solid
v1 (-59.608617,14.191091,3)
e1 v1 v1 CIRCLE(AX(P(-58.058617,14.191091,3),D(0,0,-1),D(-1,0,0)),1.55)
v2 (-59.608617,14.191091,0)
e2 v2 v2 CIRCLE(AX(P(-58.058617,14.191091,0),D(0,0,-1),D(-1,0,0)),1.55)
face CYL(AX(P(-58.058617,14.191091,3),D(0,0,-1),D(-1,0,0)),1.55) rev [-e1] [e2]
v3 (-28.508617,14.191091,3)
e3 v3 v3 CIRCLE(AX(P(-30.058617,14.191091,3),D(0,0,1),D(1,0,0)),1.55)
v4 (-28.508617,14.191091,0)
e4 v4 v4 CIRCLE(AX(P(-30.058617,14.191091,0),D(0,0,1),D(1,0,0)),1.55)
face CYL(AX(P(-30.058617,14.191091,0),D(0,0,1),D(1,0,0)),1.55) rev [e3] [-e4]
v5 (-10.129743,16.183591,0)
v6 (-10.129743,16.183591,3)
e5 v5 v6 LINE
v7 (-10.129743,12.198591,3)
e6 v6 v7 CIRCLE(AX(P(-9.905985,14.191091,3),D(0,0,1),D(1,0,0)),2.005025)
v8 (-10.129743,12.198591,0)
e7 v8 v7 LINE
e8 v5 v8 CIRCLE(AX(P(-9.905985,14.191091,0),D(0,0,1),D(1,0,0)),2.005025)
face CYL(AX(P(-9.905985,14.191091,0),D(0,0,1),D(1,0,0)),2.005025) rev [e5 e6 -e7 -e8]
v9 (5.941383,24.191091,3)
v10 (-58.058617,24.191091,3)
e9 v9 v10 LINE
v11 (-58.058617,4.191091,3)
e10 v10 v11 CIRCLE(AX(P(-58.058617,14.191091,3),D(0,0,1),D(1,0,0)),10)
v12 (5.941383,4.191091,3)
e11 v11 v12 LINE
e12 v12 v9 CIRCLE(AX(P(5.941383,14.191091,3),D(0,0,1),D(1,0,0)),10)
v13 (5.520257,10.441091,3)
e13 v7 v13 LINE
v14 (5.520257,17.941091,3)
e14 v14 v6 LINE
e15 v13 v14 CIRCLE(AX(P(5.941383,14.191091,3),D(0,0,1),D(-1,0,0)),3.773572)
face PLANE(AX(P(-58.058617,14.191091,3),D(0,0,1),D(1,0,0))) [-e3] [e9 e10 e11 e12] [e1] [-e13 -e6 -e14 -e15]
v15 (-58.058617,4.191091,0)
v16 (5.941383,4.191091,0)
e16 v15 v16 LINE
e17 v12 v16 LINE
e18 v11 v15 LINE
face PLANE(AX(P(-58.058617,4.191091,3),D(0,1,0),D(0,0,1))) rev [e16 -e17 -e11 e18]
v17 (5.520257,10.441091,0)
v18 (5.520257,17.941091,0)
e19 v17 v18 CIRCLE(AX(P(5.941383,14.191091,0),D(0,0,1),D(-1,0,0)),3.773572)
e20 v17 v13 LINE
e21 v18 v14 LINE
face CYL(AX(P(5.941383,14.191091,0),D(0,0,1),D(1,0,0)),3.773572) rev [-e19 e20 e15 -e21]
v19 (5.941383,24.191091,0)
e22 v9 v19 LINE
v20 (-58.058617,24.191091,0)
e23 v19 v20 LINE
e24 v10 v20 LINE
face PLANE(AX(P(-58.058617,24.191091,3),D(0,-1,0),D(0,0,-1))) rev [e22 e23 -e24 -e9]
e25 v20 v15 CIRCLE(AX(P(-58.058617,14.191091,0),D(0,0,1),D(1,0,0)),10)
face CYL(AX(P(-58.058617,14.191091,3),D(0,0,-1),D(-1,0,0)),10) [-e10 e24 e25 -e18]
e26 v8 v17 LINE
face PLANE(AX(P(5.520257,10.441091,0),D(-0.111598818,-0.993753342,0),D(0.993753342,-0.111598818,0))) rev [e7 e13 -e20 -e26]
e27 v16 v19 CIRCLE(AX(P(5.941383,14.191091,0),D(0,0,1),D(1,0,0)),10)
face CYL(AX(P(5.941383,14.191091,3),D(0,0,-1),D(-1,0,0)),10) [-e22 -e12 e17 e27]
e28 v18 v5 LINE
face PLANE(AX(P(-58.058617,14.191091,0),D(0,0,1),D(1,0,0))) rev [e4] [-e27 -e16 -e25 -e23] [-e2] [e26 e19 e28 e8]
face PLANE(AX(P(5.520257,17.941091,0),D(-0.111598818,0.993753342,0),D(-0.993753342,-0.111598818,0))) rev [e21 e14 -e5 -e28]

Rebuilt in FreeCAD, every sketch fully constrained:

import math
import FreeCAD as App
import Part
import Sketcher

V = App.Vector

doc = App.newDocument("Part")
body = doc.addObject("PartDesign::Body", "Body")

# Sketch on XY plane
sketch1 = body.newObject("Sketcher::SketchObject", "Sketch")
sketch1.AttachmentSupport = (doc.getObject("XY_Plane"), [""])
sketch1.MapMode = "FlatFace"
sketch1.addGeometry([
    Part.LineSegment(V(5.941383, 24.191091, 0), V(-58.058617, 24.191091, 0)),
    Part.ArcOfCircle(Part.Circle(V(-58.058617, 14.191091, 0), V(0, 0, 1), 10), math.radians(90), math.radians(270)),
    Part.LineSegment(V(-58.058617, 4.191091, 0), V(5.941383, 4.191091, 0)),
    Part.ArcOfCircle(Part.Circle(V(5.941383, 14.191091, 0), V(0, 0, 1), 10), math.radians(-90), math.radians(90)),
], False)
sketch1.addConstraint([
    Sketcher.Constraint("Tangent", 0, 2, 1, 1),
    Sketcher.Constraint("Tangent", 1, 2, 2, 1),
    Sketcher.Constraint("Tangent", 2, 2, 3, 1),
    Sketcher.Constraint("Tangent", 3, 2, 0, 1),
    Sketcher.Constraint("Horizontal", 0),
    Sketcher.Constraint("Horizontal", 2),
    Sketcher.Constraint("Radius", 1, 10.0),
    Sketcher.Constraint("DistanceX", 0, 2, 0, 1, 64.0),
    Sketcher.Constraint("DistanceY", -1, 1, 1, 3, 14.191091),
    Sketcher.Constraint("DistanceX", 1, 3, -1, 1, 58.058617),
])
pad1 = body.newObject("PartDesign::Pad", "Pad")
pad1.Profile = sketch1
pad1.Length = 3

# Sketch on XY plane
sketch2 = body.newObject("Sketcher::SketchObject", "Sketch001")
sketch2.AttachmentSupport = (doc.getObject("XY_Plane"), [""])
sketch2.MapMode = "FlatFace"
sketch2.AttachmentOffset = App.Placement(V(0, 0, 3), App.Rotation())
sketch2.addGeometry([
    Part.LineSegment(V(5.520257, 17.941091, 0), V(-10.129743, 16.183591, 0)),
    Part.ArcOfCircle(Part.Circle(V(-9.905985, 14.191091, 0), V(0, 0, 1), 2.005025), math.radians(96.407489), math.radians(263.592511)),
    Part.LineSegment(V(-10.129743, 12.198591, 0), V(5.520257, 10.441091, 0)),
    Part.ArcOfCircle(Part.Circle(V(5.941383, 14.191091, 0), V(0, 0, 1), 3.773572), math.radians(-96.407489), math.radians(96.407489)),
], False)
sketch2.addConstraint([
    Sketcher.Constraint("Tangent", 0, 2, 1, 1),
    Sketcher.Constraint("Tangent", 1, 2, 2, 1),
    Sketcher.Constraint("Tangent", 2, 2, 3, 1),
    Sketcher.Constraint("Tangent", 3, 2, 0, 1),
    Sketcher.Constraint("Horizontal", 1, 3, 3, 3),
    Sketcher.Constraint("DistanceY", 2, 2, 3, 2, 7.5),
    Sketcher.Constraint("DistanceX", 1, 2, 2, 2, 15.65),
    Sketcher.Constraint("Radius", 1, 2.005025),
    Sketcher.Constraint("DistanceY", -1, 1, 1, 3, 14.191091),
    Sketcher.Constraint("DistanceX", 1, 3, -1, 1, 9.905985),
])
pocket1 = body.newObject("PartDesign::Pocket", "Pocket")
pocket1.Profile = sketch2
pocket1.Length = 3

# Sketch on XY plane
sketch3 = body.newObject("Sketcher::SketchObject", "Sketch002")
sketch3.AttachmentSupport = (doc.getObject("XY_Plane"), [""])
sketch3.MapMode = "FlatFace"
sketch3.AttachmentOffset = App.Placement(V(0, 0, 3), App.Rotation())
sketch3.addGeometry(Part.Circle(V(-30.058617, 14.191091, 0), V(0, 0, 1), 1.55), False)
sketch3.addConstraint([
    Sketcher.Constraint("Diameter", 0, 3.1),
    Sketcher.Constraint("DistanceY", -1, 1, 0, 3, 14.191091),
    Sketcher.Constraint("DistanceX", 0, 3, -1, 1, 30.058617),
])
pocket2 = body.newObject("PartDesign::Pocket", "Pocket001")
pocket2.Profile = sketch3
pocket2.Length = 3

# Sketch on XY plane
sketch4 = body.newObject("Sketcher::SketchObject", "Sketch003")
sketch4.AttachmentSupport = (doc.getObject("XY_Plane"), [""])
sketch4.MapMode = "FlatFace"
sketch4.addGeometry(Part.Circle(V(-58.058617, 14.191091, 0), V(0, 0, 1), 1.55), False)
sketch4.addConstraint([
    Sketcher.Constraint("Diameter", 0, 3.1),
    Sketcher.Constraint("DistanceY", -1, 1, 0, 3, 14.191091),
    Sketcher.Constraint("DistanceX", 0, 3, -1, 1, 58.058617),
])
pocket3 = body.newObject("PartDesign::Pocket", "Pocket002")
pocket3.Profile = sketch4
pocket3.Length = 3
pocket3.Reversed = True

doc.recompute()
